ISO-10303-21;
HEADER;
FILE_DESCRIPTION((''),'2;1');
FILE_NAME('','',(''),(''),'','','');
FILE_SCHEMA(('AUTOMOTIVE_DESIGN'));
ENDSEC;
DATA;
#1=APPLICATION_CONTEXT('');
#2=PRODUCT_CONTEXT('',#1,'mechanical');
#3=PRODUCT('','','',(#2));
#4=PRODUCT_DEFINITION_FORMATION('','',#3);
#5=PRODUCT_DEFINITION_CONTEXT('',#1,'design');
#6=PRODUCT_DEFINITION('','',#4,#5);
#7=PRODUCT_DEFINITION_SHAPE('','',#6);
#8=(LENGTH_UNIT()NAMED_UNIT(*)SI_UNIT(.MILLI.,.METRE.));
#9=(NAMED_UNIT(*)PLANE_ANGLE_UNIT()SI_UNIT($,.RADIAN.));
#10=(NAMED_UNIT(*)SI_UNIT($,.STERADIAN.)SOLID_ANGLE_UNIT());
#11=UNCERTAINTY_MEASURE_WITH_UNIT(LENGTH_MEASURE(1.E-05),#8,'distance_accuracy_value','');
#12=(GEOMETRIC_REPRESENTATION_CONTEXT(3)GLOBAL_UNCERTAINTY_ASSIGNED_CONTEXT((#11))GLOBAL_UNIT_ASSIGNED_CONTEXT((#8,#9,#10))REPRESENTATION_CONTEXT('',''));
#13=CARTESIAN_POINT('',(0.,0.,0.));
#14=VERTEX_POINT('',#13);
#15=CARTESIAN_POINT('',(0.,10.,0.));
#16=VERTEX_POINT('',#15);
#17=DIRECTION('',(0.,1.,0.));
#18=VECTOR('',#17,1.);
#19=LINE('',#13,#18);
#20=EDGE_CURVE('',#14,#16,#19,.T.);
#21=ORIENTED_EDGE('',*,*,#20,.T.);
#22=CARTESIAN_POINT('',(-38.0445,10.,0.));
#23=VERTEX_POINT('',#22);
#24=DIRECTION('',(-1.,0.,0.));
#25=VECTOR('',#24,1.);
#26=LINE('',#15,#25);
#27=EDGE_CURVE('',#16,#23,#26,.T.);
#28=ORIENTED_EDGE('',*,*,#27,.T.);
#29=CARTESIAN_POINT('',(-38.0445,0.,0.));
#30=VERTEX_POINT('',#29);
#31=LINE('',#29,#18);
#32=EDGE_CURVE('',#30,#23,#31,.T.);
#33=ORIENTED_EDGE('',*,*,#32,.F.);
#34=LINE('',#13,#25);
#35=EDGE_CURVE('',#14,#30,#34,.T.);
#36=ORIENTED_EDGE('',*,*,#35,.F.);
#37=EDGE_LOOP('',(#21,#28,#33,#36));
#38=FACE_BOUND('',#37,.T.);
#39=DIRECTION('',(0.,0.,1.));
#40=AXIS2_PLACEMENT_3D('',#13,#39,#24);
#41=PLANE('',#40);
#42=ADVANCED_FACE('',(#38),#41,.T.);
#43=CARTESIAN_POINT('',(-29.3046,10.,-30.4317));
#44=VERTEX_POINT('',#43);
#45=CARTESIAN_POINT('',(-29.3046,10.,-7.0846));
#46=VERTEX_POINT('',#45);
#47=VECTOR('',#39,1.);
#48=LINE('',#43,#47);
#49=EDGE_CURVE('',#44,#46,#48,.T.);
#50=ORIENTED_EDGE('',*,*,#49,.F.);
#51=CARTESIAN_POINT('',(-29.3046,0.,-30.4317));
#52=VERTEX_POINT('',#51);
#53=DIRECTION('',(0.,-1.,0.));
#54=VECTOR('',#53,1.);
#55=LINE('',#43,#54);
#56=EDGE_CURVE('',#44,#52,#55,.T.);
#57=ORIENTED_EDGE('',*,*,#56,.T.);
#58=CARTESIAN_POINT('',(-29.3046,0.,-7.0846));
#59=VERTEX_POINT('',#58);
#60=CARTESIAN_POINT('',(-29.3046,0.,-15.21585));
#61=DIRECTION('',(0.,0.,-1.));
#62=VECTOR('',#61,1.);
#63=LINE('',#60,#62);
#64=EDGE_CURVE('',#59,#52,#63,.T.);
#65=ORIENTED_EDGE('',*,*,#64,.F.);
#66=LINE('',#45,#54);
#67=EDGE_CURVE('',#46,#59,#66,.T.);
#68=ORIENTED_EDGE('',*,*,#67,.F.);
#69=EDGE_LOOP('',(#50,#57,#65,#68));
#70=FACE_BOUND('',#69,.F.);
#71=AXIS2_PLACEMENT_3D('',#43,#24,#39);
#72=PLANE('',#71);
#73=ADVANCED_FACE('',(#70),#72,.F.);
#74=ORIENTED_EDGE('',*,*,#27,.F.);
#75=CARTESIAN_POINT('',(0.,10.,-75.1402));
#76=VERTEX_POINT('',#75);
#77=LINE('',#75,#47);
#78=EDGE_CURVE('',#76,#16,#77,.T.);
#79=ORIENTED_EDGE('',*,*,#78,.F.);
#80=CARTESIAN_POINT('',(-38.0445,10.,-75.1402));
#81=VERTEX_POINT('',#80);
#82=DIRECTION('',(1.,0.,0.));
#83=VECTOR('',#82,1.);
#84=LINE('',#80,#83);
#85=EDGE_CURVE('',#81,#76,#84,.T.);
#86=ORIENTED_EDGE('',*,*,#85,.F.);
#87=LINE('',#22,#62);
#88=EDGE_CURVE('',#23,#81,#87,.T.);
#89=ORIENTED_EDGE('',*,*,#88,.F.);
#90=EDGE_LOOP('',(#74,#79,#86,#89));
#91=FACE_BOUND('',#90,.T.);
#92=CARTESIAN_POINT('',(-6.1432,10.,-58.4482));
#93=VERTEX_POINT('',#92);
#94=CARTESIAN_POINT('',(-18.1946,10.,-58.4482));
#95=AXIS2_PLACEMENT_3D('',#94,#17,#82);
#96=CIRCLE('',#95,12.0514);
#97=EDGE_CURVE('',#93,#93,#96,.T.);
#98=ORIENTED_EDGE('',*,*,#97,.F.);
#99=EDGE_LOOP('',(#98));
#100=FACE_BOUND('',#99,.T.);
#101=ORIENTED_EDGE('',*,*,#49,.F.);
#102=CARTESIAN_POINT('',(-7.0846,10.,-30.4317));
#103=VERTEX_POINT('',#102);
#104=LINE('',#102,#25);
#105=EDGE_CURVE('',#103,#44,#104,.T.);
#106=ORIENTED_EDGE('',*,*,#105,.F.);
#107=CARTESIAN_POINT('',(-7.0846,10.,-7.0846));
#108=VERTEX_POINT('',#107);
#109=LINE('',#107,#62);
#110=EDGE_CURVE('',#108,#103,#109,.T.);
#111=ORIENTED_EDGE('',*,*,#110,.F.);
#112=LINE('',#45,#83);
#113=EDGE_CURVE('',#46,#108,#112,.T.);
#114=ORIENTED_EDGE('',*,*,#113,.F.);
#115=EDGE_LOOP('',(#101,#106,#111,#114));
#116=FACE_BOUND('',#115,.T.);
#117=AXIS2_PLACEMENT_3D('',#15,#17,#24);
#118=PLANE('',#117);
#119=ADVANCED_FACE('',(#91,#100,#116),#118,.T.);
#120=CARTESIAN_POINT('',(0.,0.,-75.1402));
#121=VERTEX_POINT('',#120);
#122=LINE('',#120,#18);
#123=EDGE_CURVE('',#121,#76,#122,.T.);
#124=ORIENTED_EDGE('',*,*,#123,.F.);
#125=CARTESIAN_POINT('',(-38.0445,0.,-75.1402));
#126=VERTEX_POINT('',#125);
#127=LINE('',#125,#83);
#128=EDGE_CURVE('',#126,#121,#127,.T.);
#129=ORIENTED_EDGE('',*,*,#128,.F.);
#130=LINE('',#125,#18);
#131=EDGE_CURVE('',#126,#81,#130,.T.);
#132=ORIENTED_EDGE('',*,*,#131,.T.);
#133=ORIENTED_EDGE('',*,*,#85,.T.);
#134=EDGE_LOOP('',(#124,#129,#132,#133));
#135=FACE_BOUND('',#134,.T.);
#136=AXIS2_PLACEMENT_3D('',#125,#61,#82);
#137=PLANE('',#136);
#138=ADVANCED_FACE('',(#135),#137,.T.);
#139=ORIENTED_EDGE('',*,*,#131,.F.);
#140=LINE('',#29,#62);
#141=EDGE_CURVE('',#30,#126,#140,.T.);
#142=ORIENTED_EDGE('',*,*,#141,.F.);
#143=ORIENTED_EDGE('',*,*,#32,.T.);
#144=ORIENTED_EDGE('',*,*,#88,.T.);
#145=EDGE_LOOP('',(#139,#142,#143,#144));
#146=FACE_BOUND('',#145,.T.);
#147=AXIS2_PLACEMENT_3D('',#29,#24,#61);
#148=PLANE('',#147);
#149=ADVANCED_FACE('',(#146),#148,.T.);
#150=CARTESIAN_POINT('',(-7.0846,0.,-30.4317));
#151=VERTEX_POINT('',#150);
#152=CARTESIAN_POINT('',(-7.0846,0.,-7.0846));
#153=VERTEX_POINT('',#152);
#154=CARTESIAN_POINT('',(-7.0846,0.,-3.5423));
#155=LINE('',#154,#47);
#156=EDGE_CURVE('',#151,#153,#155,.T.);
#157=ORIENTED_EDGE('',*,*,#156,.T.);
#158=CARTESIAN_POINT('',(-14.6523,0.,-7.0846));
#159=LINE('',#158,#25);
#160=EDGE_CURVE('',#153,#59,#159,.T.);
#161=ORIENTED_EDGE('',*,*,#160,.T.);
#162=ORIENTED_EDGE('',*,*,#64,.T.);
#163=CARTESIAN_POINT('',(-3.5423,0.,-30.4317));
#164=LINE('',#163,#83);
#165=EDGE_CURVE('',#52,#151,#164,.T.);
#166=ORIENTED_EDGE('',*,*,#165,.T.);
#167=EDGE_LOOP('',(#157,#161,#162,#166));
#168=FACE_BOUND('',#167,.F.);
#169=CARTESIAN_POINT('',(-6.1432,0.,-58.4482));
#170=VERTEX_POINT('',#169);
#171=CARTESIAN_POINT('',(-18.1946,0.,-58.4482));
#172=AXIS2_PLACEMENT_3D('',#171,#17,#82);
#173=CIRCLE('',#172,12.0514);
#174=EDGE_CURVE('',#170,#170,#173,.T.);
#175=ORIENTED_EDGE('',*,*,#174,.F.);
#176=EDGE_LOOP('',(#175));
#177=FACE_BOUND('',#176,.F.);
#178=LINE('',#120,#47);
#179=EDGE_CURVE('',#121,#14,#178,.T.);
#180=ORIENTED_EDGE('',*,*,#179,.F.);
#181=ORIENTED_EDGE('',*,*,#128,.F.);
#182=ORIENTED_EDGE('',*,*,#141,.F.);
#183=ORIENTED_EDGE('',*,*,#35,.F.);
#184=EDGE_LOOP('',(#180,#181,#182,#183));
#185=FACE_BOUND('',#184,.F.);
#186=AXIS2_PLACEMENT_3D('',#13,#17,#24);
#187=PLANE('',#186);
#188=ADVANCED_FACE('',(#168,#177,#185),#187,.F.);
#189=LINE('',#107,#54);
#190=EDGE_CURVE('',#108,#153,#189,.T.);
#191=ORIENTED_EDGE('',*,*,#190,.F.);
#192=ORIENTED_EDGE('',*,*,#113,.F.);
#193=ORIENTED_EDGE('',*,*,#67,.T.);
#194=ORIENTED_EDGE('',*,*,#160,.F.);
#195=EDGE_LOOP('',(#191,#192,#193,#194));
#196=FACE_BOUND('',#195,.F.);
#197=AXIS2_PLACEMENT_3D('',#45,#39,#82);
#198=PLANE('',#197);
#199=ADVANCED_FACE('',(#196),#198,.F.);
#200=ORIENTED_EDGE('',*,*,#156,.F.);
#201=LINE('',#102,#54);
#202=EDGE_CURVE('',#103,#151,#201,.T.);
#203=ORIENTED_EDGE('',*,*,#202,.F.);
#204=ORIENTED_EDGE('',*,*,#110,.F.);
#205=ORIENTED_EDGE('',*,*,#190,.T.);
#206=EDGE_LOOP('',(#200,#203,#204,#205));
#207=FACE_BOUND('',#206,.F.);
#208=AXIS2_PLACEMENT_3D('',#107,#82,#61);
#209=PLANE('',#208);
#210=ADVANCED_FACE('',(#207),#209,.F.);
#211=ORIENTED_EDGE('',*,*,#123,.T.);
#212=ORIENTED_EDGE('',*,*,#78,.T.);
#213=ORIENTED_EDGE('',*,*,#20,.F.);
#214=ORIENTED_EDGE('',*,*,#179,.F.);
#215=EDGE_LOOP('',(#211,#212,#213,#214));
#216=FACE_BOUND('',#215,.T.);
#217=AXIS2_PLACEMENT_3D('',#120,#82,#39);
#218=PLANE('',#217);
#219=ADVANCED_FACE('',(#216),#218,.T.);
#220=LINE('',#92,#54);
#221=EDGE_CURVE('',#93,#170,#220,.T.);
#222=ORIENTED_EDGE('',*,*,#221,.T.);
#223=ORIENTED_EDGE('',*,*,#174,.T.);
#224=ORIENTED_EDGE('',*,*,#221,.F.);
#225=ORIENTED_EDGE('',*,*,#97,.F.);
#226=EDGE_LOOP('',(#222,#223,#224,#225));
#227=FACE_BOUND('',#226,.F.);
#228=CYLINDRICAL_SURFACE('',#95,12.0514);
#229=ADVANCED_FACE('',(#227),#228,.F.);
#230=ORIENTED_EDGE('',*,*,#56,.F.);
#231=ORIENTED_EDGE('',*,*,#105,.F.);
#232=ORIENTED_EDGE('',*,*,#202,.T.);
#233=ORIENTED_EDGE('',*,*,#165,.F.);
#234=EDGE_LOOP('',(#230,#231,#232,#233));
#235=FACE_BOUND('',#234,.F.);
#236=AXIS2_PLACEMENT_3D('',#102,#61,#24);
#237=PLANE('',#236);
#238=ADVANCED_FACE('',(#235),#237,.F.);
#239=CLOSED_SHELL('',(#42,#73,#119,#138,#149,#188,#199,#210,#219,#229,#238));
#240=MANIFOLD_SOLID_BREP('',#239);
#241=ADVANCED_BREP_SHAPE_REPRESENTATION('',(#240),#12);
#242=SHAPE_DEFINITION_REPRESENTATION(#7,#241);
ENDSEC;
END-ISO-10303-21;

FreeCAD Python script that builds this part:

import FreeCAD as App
import Part
import Sketcher

V = App.Vector
Q = App.Units.Quantity


def add_polygon(sketch, points):
    """Adds a closed chain of lines whose ends are joined by coincident constraints."""
    first, n = sketch.GeometryCount, len(points)
    for a, b in zip(points, points[1:] + points[:1]):
        sketch.addGeometry(Part.LineSegment(App.Vector(*a, 0), App.Vector(*b, 0)), False)
    for i in range(n):
        sketch.addConstraint(Sketcher.Constraint("Coincident", first + i, 2, first + (i + 1) % n, 1))

doc = App.newDocument("Part")
params = doc.addObject("Spreadsheet::Sheet", "Params")
for row, (alias, value) in enumerate([
    ("pad1_length", "10 mm"),
    ("sketch2_width", "22.22 mm"),
], start=1):
    params.set(f"A{row}", alias)
    params.set(f"B{row}", "=" + value)
    params.setAlias(f"B{row}", alias)

body = doc.addObject("PartDesign::Body", "Body")

sketch1 = doc.addObject("Sketcher::SketchObject", "Sketch")
body.addObject(sketch1)
sketch1.AttachmentSupport = (doc.XZ_Plane, [""])
sketch1.MapMode = "FlatFace"
add_polygon(sketch1, [(-38, 0), (0, 0), (0, -75), (-38, -75)])
sketch1.addConstraint(Sketcher.Constraint("Horizontal", 0))
sketch1.addConstraint(Sketcher.Constraint("Vertical", 1))
sketch1.addConstraint(Sketcher.Constraint("Horizontal", 2))
sketch1.addConstraint(Sketcher.Constraint("Vertical", 3))
sketch1.addConstraint(Sketcher.Constraint("Coincident", 0, 2, -1, 1))
sketch1.addConstraint(Sketcher.Constraint("DistanceX", 0, 1, 0, 2, Q("38.0445 mm")))
sketch1.addConstraint(Sketcher.Constraint("DistanceY", 1, 2, 1, 1, Q("75.1402 mm")))
pad1 = doc.addObject("PartDesign::Pad", "Pad")
body.addObject(pad1)
pad1.Profile = sketch1
pad1.setExpression("Length", "Params.pad1_length")
pad1.Reversed = True

sketch2 = doc.addObject("Sketcher::SketchObject", "Sketch001")
body.addObject(sketch2)
sketch2.AttachmentSupport = (doc.XZ_Plane, [""])
sketch2.MapMode = "FlatFace"
sketch2.AttachmentOffset = App.Placement(V(0, 0, -10), App.Rotation())
add_polygon(sketch2, [(-29, -30), (-29, -7), (-7, -7), (-7, -30)])
sketch2.addGeometry(Part.Circle(V(-18, -58, 0), V(0, 0, 1), 12), False)
sketch2.addConstraint(Sketcher.Constraint("Vertical", 0))
sketch2.addConstraint(Sketcher.Constraint("Horizontal", 1))
sketch2.addConstraint(Sketcher.Constraint("Vertical", 2))
sketch2.addConstraint(Sketcher.Constraint("Horizontal", 3))
sketch2.addConstraint(Sketcher.Constraint("Diameter", 4, Q("24.1028 mm")))
sketch2.addConstraint(Sketcher.Constraint("DistanceX", 1, 1, 1, 2, Q("22.22 mm")))
sketch2.addConstraint(Sketcher.Constraint("DistanceY", 0, 1, 0, 2, Q("23.347 mm")))
sketch2.addConstraint(Sketcher.Constraint("DistanceX", 0, 2, 4, 3, Q("11.11 mm")))
sketch2.addConstraint(Sketcher.Constraint("DistanceX", 4, 3, -1, 1, Q("18.1946 mm")))
sketch2.addConstraint(Sketcher.Constraint("DistanceY", 4, 3, -1, 1, Q("58.4482 mm")))
sketch2.addConstraint(Sketcher.Constraint("DistanceY", 0, 2, -1, 1, Q("7.0846 mm")))
sketch2.setExpression("Constraints[9]", "Params.sketch2_width")
pocket1 = doc.addObject("PartDesign::Pocket", "Pocket")
body.addObject(pocket1)
pocket1.Profile = sketch2
pocket1.Type = "UpToFirst"
pocket1.Reversed = True

doc.recompute()
